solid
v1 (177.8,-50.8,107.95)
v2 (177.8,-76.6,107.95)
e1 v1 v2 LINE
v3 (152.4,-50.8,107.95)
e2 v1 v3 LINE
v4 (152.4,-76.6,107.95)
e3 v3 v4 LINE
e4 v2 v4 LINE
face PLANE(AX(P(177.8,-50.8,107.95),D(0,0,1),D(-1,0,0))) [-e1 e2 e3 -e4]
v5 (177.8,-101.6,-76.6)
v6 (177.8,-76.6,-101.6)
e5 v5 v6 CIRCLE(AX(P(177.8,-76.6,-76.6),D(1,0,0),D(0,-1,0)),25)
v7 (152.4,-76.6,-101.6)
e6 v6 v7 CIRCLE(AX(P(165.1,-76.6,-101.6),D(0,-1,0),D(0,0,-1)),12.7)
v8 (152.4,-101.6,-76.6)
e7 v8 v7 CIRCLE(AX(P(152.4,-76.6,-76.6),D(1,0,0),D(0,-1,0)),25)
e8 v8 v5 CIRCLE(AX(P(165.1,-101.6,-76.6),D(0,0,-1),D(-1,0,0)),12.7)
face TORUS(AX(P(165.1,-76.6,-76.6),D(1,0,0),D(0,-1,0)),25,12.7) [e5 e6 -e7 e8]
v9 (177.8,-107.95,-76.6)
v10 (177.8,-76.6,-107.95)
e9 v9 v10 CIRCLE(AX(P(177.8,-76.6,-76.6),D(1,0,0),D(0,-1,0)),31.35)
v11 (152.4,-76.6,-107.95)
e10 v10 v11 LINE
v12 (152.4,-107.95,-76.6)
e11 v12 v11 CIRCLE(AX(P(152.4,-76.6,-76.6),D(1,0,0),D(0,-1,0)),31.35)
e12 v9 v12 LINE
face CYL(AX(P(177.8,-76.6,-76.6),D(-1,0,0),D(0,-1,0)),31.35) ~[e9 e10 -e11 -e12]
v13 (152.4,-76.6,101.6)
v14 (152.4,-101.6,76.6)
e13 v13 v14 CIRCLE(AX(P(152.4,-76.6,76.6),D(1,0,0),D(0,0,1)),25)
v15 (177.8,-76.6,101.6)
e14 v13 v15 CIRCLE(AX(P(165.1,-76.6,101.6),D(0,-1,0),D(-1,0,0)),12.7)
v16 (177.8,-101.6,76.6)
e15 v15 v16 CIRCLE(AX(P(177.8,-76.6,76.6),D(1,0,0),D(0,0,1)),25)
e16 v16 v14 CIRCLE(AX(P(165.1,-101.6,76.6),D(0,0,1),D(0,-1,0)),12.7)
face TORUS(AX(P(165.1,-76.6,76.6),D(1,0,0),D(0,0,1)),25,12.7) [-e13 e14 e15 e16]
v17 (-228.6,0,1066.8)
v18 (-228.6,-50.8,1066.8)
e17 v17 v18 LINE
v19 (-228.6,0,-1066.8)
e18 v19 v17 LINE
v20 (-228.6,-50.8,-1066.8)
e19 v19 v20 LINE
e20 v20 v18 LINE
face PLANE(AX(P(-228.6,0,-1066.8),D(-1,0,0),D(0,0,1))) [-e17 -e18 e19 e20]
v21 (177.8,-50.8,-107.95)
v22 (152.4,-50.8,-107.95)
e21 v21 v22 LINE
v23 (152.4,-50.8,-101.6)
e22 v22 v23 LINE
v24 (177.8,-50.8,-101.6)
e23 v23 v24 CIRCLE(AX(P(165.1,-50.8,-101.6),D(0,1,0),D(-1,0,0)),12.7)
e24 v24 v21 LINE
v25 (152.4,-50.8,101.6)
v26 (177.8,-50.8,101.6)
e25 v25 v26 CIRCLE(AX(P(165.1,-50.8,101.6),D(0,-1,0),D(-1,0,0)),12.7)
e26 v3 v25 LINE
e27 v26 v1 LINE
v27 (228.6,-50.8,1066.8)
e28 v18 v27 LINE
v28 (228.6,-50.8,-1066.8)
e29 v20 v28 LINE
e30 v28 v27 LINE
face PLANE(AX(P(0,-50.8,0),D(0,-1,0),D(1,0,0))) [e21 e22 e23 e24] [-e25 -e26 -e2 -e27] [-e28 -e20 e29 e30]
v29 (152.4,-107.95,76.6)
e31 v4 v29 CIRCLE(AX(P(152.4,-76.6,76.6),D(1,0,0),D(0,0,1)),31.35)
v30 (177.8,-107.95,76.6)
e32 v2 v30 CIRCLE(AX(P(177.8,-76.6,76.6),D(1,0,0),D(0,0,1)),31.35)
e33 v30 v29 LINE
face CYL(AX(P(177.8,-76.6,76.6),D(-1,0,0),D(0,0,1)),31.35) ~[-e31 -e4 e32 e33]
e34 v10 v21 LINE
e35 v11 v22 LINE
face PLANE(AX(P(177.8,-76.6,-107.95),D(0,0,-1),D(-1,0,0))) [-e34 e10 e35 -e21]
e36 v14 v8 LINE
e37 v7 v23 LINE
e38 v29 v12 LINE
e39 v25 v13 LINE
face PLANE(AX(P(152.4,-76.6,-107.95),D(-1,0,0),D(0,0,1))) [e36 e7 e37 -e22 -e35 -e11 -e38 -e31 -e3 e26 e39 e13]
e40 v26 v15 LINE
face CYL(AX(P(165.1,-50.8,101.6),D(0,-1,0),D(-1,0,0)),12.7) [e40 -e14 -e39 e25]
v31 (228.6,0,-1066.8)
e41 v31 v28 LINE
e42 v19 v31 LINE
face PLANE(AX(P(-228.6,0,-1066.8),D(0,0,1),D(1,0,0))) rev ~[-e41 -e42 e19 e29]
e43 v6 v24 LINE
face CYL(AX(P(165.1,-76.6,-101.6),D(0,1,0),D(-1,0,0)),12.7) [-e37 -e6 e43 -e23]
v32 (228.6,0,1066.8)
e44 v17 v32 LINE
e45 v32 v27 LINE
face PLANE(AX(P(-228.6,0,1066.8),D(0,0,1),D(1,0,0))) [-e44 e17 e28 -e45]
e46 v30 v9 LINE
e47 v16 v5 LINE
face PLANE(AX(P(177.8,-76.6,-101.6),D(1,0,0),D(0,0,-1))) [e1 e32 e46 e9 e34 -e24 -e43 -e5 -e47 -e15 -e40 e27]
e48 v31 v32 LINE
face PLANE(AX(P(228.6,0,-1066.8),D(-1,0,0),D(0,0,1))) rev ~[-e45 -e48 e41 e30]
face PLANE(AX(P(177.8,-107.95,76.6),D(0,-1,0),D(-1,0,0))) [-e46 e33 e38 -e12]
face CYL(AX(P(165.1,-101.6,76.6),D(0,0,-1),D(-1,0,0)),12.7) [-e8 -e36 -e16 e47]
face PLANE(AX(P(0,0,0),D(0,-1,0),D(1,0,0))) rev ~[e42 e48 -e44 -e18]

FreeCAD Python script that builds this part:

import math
import FreeCAD as App
import Part
import Sketcher
from FreeCAD import Vector
Q = App.Units.Quantity

doc = App.newDocument("Part")
params = doc.addObject("Spreadsheet::Sheet", "Params")
for row, (alias, value) in enumerate([
    ("sketch1_width", "18 in"),
    ("sketch1_height", "84 in"),
    ("pad1_length", "2 in"),
    ("sketch2_radius", "0.5 in"),
    ("sketch2_height", "0.25 in"),
], start=1):
    params.set(f"A{row}", alias)
    params.set(f"B{row}", "=" + value)
    params.setAlias(f"B{row}", alias)

body = doc.addObject("PartDesign::Body", "Body")

# Sketch on XZ plane
sketch1 = body.newObject("Sketcher::SketchObject", "Sketch")
sketch1.AttachmentSupport = (doc.getObject("XZ_Plane"), [""])
sketch1.MapMode = "FlatFace"
sketch1.addGeometry([
    Part.LineSegment(Vector(-229, 1067, 0), Vector(-229, -1067, 0)),
    Part.LineSegment(Vector(-229, -1067, 0), Vector(229, -1067, 0)),
    Part.LineSegment(Vector(229, -1067, 0), Vector(229, 1067, 0)),
    Part.LineSegment(Vector(229, 1067, 0), Vector(-229, 1067, 0)),
], False)
sketch1.addConstraint([
    Sketcher.Constraint("Coincident", 0, 2, 1, 1),
    Sketcher.Constraint("Coincident", 1, 2, 2, 1),
    Sketcher.Constraint("Coincident", 2, 2, 3, 1),
    Sketcher.Constraint("Coincident", 3, 2, 0, 1),
    Sketcher.Constraint("Vertical", 0),
    Sketcher.Constraint("Horizontal", 1),
    Sketcher.Constraint("Vertical", 2),
    Sketcher.Constraint("Horizontal", 3),
    Sketcher.Constraint("Symmetric", 0, 2, 2, 2, -1, 1),
    Sketcher.Constraint("DistanceX", 1, 1, 1, 2, Q("18 in")),
    Sketcher.Constraint("DistanceY", 0, 2, 0, 1, Q("84 in")),
])
sketch1.setExpression("Constraints[9]", "Params.sketch1_width")
sketch1.setExpression("Constraints[10]", "Params.sketch1_height")
pad1 = body.newObject("PartDesign::Pad", "Pad")
pad1.Profile = sketch1
pad1.setExpression("Length", "Params.pad1_length")

# Sketch on XZ plane
sketch2 = body.newObject("Sketcher::SketchObject", "Sketch001")
sketch2.AttachmentSupport = (doc.getObject("XZ_Plane"), [""])
sketch2.MapMode = "FlatFace"
sketch2.AttachmentOffset = App.Placement(Vector(0, 0, 2 * 25.4), App.Rotation())
sketch2.addGeometry([
    Part.LineSegment(Vector(178, 108, 0), Vector(152, 108, 0)),
    Part.LineSegment(Vector(152, 108, 0), Vector(152, 102, 0)),
    Part.ArcOfCircle(Part.Circle(Vector(165, 102, 0), Vector(0, 0, 1), 13), math.radians(180), math.radians(360)),
    Part.LineSegment(Vector(178, 102, 0), Vector(178, 108, 0)),
], False)
sketch2.addConstraint([
    Sketcher.Constraint("Coincident", 0, 2, 1, 1),
    Sketcher.Constraint("Tangent", 1, 2, 2, 1),
    Sketcher.Constraint("Tangent", 2, 2, 3, 1),
    Sketcher.Constraint("Coincident", 3, 2, 0, 1),
    Sketcher.Constraint("Horizontal", 0),
    Sketcher.Constraint("Vertical", 1),
    Sketcher.Constraint("Vertical", 3),
    Sketcher.Constraint("Radius", 2, Q("0.5 in")),
    Sketcher.Constraint("DistanceY", -1, 1, 2, 3, Q("4 in")),
    Sketcher.Constraint("DistanceX", -1, 1, 0, 2, Q("6 in")),
    Sketcher.Constraint("DistanceY", 1, 2, 1, 1, Q("0.25 in")),
])
sketch2.setExpression("Constraints[7]", "Params.sketch2_radius")
sketch2.setExpression("Constraints[10]", "Params.sketch2_height")

# Sketch on YZ plane
sketch3 = body.newObject("Sketcher::SketchObject", "Sketch002")
sketch3.AttachmentSupport = (doc.getObject("YZ_Plane"), [""])
sketch3.MapMode = "FlatFace"
sketch3.AttachmentOffset = App.Placement(Vector(0, 0, 6.5 * 25.4), App.Rotation())
sketch3.addGeometry([
    Part.LineSegment(Vector(-51, 102, 0), Vector(-77, 102, 0)),  # 0
    Part.ArcOfCircle(Part.Circle(Vector(-77, 77, 0), Vector(0, 0, 1), 25), math.radians(90), math.radians(180)),  # 1
    Part.LineSegment(Vector(-102, 77, 0), Vector(-102, -77, 0)),  # 2
    Part.ArcOfCircle(Part.Circle(Vector(-77, -77, 0), Vector(0, 0, 1), 25), math.radians(180), math.radians(270)),  # 3
    Part.LineSegment(Vector(-77, -102, 0), Vector(-51, -102, 0)),  # 4
], False)
sketch3.addConstraint([
    Sketcher.Constraint("Tangent", 0, 2, 1, 1),
    Sketcher.Constraint("Tangent", 1, 2, 2, 1),
    Sketcher.Constraint("Tangent", 2, 2, 3, 1),
    Sketcher.Constraint("Tangent", 3, 2, 4, 1),
    Sketcher.Constraint("Horizontal", 0),
    Sketcher.Constraint("Vertical", 2),
    Sketcher.Constraint("Horizontal", 4),
    Sketcher.Constraint("Equal", 1, 3),
    Sketcher.Constraint("Symmetric", 0, 1, 4, 2, -1),
    Sketcher.Constraint("DistanceX", 0, 1, -1, 1, Q("2 in")),
    Sketcher.Constraint("DistanceY", -1, 1, 0, 1, Q("4 in")),
    Sketcher.Constraint("DistanceX", 1, 2, -1, 1, Q("4 in")),
    Sketcher.Constraint("Radius", 1, 25.0),
])
doc.recompute()

additivepipe = body.newObject("PartDesign::AdditivePipe", "AdditivePipe")
additivepipe.Profile = sketch2
additivepipe.Spine = (sketch3, ["Edge1", "Edge2", "Edge3", "Edge4", "Edge5"])

doc.recompute()
